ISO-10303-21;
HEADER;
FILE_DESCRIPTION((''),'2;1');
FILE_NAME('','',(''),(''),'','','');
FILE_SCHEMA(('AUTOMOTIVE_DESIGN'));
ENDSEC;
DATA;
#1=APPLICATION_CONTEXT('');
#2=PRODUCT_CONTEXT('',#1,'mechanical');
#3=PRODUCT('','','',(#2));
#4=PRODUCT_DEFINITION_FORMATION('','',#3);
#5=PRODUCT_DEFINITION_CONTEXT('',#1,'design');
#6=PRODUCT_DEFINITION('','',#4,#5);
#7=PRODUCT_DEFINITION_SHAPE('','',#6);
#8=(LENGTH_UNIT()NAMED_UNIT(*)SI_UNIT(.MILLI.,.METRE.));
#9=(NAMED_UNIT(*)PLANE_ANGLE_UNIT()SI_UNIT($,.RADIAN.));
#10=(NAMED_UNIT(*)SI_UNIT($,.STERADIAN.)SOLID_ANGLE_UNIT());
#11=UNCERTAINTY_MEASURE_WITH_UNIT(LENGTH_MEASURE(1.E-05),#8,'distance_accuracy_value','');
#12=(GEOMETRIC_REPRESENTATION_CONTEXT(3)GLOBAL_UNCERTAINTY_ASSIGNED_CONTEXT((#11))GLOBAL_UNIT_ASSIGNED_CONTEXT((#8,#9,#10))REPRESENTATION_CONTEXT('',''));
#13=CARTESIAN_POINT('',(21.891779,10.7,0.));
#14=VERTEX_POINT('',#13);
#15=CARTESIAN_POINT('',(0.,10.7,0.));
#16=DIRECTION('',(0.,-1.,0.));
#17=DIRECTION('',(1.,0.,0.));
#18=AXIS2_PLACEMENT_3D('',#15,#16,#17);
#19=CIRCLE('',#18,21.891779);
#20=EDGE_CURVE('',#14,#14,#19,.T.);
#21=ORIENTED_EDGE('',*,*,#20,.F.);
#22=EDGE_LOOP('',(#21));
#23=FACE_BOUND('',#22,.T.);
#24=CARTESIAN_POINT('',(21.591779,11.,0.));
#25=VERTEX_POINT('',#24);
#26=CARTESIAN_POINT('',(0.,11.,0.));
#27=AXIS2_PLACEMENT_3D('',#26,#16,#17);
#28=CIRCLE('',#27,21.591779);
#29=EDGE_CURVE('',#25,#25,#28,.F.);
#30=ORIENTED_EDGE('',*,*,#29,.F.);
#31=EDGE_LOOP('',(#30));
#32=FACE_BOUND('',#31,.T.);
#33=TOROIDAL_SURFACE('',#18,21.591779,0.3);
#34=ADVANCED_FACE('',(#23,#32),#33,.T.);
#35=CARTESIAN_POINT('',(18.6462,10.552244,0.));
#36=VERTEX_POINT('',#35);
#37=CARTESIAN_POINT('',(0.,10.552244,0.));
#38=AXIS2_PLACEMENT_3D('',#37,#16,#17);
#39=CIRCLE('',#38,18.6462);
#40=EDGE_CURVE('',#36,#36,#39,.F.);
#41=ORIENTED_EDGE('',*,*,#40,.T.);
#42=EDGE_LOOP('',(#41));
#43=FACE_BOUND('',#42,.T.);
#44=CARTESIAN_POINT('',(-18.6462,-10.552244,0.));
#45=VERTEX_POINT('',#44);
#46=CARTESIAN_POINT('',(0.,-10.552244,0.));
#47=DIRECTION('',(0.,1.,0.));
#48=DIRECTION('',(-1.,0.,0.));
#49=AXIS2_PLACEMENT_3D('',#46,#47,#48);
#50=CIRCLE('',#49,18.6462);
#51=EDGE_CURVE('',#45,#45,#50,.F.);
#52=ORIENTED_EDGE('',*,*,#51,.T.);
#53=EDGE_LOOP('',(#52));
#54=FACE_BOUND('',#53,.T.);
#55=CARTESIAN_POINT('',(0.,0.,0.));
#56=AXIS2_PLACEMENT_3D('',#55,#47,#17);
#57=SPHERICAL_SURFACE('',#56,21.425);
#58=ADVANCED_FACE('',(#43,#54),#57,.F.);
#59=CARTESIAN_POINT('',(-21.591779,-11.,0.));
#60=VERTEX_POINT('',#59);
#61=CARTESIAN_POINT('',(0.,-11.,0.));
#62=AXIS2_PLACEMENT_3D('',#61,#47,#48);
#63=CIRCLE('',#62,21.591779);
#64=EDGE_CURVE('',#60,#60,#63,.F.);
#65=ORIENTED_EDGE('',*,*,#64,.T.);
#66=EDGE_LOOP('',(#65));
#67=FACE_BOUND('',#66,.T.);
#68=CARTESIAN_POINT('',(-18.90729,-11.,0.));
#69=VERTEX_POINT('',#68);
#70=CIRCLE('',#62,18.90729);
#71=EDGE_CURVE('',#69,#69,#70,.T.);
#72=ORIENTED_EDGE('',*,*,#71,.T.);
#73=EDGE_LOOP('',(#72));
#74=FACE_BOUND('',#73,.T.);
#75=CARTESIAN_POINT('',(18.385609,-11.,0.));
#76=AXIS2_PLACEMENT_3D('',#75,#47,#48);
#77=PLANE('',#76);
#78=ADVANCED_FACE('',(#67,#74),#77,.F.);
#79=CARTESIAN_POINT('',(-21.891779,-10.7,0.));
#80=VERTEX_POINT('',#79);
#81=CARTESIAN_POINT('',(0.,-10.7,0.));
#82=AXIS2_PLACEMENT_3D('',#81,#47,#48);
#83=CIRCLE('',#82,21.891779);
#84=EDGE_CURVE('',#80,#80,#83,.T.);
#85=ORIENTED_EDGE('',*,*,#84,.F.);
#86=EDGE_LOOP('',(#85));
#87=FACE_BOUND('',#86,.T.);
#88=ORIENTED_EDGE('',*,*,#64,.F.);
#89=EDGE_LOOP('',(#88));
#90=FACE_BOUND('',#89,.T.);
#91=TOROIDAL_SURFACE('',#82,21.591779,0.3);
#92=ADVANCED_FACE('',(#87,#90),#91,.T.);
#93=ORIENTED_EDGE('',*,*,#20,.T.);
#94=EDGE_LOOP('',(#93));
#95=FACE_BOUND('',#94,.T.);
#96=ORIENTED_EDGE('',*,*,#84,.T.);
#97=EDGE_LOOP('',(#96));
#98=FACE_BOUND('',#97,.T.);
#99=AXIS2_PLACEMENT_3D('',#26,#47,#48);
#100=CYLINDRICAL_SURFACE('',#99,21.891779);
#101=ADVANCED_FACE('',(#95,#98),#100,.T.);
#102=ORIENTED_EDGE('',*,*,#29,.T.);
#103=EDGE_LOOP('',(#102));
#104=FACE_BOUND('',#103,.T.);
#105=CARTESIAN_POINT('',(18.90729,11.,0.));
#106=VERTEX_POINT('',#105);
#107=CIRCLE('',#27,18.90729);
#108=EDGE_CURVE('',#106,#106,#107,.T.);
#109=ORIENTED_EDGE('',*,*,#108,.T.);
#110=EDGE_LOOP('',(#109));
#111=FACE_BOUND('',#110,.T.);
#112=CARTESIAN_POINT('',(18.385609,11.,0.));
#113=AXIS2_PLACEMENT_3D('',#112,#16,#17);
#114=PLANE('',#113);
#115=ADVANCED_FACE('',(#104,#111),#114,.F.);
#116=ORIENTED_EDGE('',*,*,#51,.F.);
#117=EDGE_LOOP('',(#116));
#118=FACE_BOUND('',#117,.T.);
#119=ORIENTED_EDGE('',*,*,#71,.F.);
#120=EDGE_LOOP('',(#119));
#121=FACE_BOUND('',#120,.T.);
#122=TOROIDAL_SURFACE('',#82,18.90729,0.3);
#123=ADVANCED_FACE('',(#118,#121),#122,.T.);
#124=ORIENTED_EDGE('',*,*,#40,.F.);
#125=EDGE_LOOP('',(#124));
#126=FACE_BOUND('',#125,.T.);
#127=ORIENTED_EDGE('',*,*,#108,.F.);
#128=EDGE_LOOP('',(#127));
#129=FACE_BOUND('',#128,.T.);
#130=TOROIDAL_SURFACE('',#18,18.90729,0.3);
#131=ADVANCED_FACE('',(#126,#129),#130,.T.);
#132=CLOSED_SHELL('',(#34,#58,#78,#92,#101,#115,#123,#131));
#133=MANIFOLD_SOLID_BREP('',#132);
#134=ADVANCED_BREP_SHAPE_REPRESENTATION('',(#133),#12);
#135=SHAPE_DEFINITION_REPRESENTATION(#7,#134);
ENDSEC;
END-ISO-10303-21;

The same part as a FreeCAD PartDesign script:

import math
import FreeCAD as App
import Part
import Sketcher

V = App.Vector


def edges_at(feature, points):
    """Names of the edges that pass closest to the given points."""
    edges = feature.Shape.Edges
    near = lambda p: min(range(len(edges)), key=lambda i: edges[i].distToShape(Part.Vertex(*p))[0])
    return sorted({f"Edge{near(p) + 1}" for p in points})

doc = App.newDocument("Part")
params = doc.addObject("Spreadsheet::Sheet", "Params")
for row, (alias, value) in enumerate([
    ("sketch1_height", "22 mm"),
    ("revolution_angle", "360 deg"),
    ("fillet_radius", "0.3 mm"),
], start=1):
    params.set(f"A{row}", alias)
    params.set(f"B{row}", "=" + value)
    params.setAlias(f"B{row}", alias)

body = doc.addObject("PartDesign::Body", "Body")

# Sketch on XY plane
sketch1 = doc.addObject("Sketcher::SketchObject", "Sketch")
body.addObject(sketch1)
sketch1.AttachmentSupport = (doc.XY_Plane, [""])
sketch1.MapMode = "FlatFace"
sketch1.addGeometry(Part.LineSegment(V(21.9, 11, 0), V(18.4, 11, 0)), False)
sketch1.addGeometry(Part.ArcOfCircle(Part.Circle(V(0, 0, 0), V(0, 0, 1), 21.4), math.radians(-31), math.radians(31)), False)
sketch1.addGeometry(Part.LineSegment(V(18.4, -11, 0), V(21.9, -11, 0)), False)
sketch1.addGeometry(Part.LineSegment(V(21.9, -11, 0), V(21.9, 11, 0)), False)
sketch1.addConstraint(Sketcher.Constraint("Coincident", 0, 2, 1, 2))
sketch1.addConstraint(Sketcher.Constraint("Coincident", 1, 1, 2, 1))
sketch1.addConstraint(Sketcher.Constraint("Coincident", 2, 2, 3, 1))
sketch1.addConstraint(Sketcher.Constraint("Coincident", 3, 2, 0, 1))
sketch1.addConstraint(Sketcher.Constraint("Horizontal", 0))
sketch1.addConstraint(Sketcher.Constraint("Horizontal", 2))
sketch1.addConstraint(Sketcher.Constraint("Vertical", 3))
sketch1.addConstraint(Sketcher.Constraint("Coincident", 1, 3, -1, 1))
sketch1.addConstraint(Sketcher.Constraint("Vertical", 0, 2, 1, 1))
sketch1.addConstraint(Sketcher.Constraint("DistanceY", 3, 1, 3, 2, 22.0))
sketch1.addConstraint(Sketcher.Constraint("Radius", 1, 21.425))
sketch1.addConstraint(Sketcher.Constraint("DistanceX", 0, 2, 0, 1, 3.50617))
sketch1.setExpression("Constraints[9]", "Params.sketch1_height")
revolution = doc.addObject("PartDesign::Revolution", "Revolution")
body.addObject(revolution)
revolution.Profile = sketch1
revolution.ReferenceAxis = (sketch1, ["V_Axis"])
revolution.setExpression("Angle", "Params.revolution_angle")
doc.recompute()

fillet = doc.addObject("PartDesign::Fillet", "Fillet")
body.addObject(fillet)
fillet.Base = (revolution, edges_at(revolution, [
    (-21.892, -11, 0),
    (-18.386, -11, 0),
    (-18.386, 11, 0),
    (-21.892, 11, 0),
]))
fillet.setExpression("Radius", "Params.fillet_radius")

doc.recompute()
